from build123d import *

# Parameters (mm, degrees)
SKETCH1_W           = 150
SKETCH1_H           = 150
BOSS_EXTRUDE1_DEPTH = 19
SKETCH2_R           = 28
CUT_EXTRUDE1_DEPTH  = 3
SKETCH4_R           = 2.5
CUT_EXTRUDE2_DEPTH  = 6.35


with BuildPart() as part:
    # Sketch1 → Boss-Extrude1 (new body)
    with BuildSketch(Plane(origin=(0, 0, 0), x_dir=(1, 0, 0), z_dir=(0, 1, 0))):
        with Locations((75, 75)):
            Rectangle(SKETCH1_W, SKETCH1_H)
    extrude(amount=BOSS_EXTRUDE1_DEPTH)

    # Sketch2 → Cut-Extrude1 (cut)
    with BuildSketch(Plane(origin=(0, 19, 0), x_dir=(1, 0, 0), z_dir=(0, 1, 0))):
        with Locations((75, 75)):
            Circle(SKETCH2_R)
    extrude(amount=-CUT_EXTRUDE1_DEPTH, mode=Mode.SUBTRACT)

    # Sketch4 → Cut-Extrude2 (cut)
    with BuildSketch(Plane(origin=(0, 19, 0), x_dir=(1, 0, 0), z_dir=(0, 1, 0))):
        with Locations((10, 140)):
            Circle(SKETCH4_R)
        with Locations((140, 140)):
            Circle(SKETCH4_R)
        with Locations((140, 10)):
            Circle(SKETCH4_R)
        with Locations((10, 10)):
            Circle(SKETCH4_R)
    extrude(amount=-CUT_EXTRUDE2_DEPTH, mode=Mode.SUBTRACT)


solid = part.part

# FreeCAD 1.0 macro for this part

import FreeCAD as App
import Part
import Sketcher
from FreeCAD import Vector
Q = App.Units.Quantity

doc = App.newDocument("Part")
body = doc.addObject("PartDesign::Body", "Body")

# Sketch on XZ plane
sketch1 = doc.addObject("Sketcher::SketchObject", "Sketch")
body.addObject(sketch1)
sketch1.AttachmentSupport = (doc.XZ_Plane, [""])
sketch1.MapMode = "FlatFace"
sketch1.addGeometry([
    Part.LineSegment(Vector(0, -150, 0), Vector(0, 0, 0)),
    Part.LineSegment(Vector(0, 0, 0), Vector(150, 0, 0)),
    Part.LineSegment(Vector(150, 0, 0), Vector(150, -150, 0)),
    Part.LineSegment(Vector(150, -150, 0), Vector(0, -150, 0)),
], False)
sketch1.addConstraint([
    Sketcher.Constraint("Coincident", 0, 2, 1, 1),
    Sketcher.Constraint("Coincident", 1, 2, 2, 1),
    Sketcher.Constraint("Coincident", 2, 2, 3, 1),
    Sketcher.Constraint("Coincident", 3, 2, 0, 1),
    Sketcher.Constraint("Vertical", 0),
    Sketcher.Constraint("Horizontal", 1),
    Sketcher.Constraint("Vertical", 2),
    Sketcher.Constraint("Horizontal", 3),
    Sketcher.Constraint("Coincident", 0, 2, -1, 1),
    Sketcher.Constraint("Equal", 3, 0),
    Sketcher.Constraint("DistanceX", 1, 1, 1, 2, Q("150 mm")),
])
pad1 = doc.addObject("PartDesign::Pad", "Pad")
body.addObject(pad1)
pad1.Profile = sketch1
pad1.Length = 19
pad1.Reversed = True

# Sketch on XZ plane
sketch2 = doc.addObject("Sketcher::SketchObject", "Sketch001")
body.addObject(sketch2)
sketch2.AttachmentSupport = (doc.XZ_Plane, [""])
sketch2.MapMode = "FlatFace"
sketch2.AttachmentOffset = App.Placement(Vector(0, 0, -19), App.Rotation())
sketch2.addGeometry(Part.Circle(Vector(75, -75, 0), Vector(0, 0, 1), 28), False)
sketch2.addConstraint([
    Sketcher.Constraint("Diameter", 0, Q("56 mm")),
    Sketcher.Constraint("DistanceX", -1, 1, 0, 3, Q("75 mm")),
    Sketcher.Constraint("DistanceY", 0, 3, -1, 1, Q("75 mm")),
])
pocket1 = doc.addObject("PartDesign::Pocket", "Pocket")
body.addObject(pocket1)
pocket1.Profile = sketch2
pocket1.Length = 3
pocket1.Reversed = True

# Sketch on XZ plane
sketch3 = doc.addObject("Sketcher::SketchObject", "Sketch002")
body.addObject(sketch3)
sketch3.AttachmentSupport = (doc.XZ_Plane, [""])
sketch3.MapMode = "FlatFace"
sketch3.AttachmentOffset = App.Placement(Vector(0, 0, -19), App.Rotation())
sketch3.addGeometry([
    Part.Circle(Vector(10, -140, 0), Vector(0, 0, 1), 2.5),
    Part.Circle(Vector(140, -140, 0), Vector(0, 0, 1), 2.5),
    Part.Circle(Vector(140, -10, 0), Vector(0, 0, 1), 2.5),
    Part.Circle(Vector(10, -10, 0), Vector(0, 0, 1), 2.5),
], False)
sketch3.addConstraint([
    Sketcher.Constraint("Equal", 0, 1),
    Sketcher.Constraint("Equal", 1, 2),
    Sketcher.Constraint("Equal", 2, 3),
    Sketcher.Constraint("Horizontal", 0, 3, 1, 3),
    Sketcher.Constraint("Horizontal", 2, 3, 3, 3),
    Sketcher.Constraint("Vertical", 1, 3, 2, 3),
    Sketcher.Constraint("Vertical", 0, 3, 3, 3),
    Sketcher.Constraint("Diameter", 0, Q("5 mm")),
    Sketcher.Constraint("DistanceX", -1, 1, 0, 3, Q("10 mm")),
    Sketcher.Constraint("DistanceY", 0, 3, -1, 1, Q("140 mm")),
    Sketcher.Constraint("DistanceX", -1, 1, 1, 3, Q("140 mm")),
    Sketcher.Constraint("DistanceY", 2, 3, -1, 1, Q("10 mm")),
])
pocket2 = doc.addObject("PartDesign::Pocket", "Pocket001")
body.addObject(pocket2)
pocket2.Profile = sketch3
pocket2.Length = 6.35
pocket2.Reversed = True

doc.recompute()
